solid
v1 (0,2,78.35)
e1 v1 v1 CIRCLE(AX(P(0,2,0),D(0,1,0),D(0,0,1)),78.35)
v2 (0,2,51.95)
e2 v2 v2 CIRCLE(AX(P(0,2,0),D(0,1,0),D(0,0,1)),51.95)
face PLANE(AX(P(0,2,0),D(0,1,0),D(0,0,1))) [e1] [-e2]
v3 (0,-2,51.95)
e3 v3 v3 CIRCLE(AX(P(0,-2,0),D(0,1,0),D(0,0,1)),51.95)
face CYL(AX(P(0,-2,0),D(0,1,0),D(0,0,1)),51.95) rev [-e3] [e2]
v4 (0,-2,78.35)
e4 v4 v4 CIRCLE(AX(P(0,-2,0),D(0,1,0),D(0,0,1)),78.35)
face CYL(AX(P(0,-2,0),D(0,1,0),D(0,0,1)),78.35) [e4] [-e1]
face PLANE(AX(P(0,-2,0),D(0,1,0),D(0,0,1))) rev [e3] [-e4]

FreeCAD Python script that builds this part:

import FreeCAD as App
import Part
import Sketcher

V = App.Vector
Q = App.Units.Quantity

doc = App.newDocument("Part")
body = doc.addObject("PartDesign::Body", "Body")

sketch1 = body.newObject("Sketcher::SketchObject", "Sketch")
sketch1.AttachmentSupport = (doc.getObject("XZ_Plane"), [""])
sketch1.MapMode = "FlatFace"
sketch1.addGeometry(Part.Circle(V(0, 0, 0), V(0, 0, 1), 78), False)
sketch1.addGeometry(Part.Circle(V(0, 0, 0), V(0, 0, 1), 52), False)
sketch1.addConstraint(Sketcher.Constraint("Coincident", 0, 3, -1, 1))
sketch1.addConstraint(Sketcher.Constraint("Coincident", 1, 3, -1, 1))
sketch1.addConstraint(Sketcher.Constraint("Diameter", 0, Q("156.7 mm")))
sketch1.addConstraint(Sketcher.Constraint("Diameter", 1, Q("103.9 mm")))
pad1 = body.newObject("PartDesign::Pad", "Pad")
pad1.Profile = sketch1
pad1.Type = "TwoLengths"
pad1.Length = 2
pad1.Length2 = 2
pad1.Reversed = True

doc.recompute()
